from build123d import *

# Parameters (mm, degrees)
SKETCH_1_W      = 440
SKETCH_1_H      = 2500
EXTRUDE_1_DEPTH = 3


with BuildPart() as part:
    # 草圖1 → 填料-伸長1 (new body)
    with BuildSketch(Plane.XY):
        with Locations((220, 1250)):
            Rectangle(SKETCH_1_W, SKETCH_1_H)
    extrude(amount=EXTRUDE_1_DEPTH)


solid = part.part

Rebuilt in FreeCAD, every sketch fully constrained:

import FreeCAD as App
import Part
import Sketcher

V = App.Vector
Q = App.Units.Quantity

doc = App.newDocument("Part")
body = doc.addObject("PartDesign::Body", "Body")

sketch1 = doc.addObject("Sketcher::SketchObject", "Sketch")
body.addObject(sketch1)
sketch1.AttachmentSupport = (doc.XY_Plane, [""])
sketch1.MapMode = "FlatFace"
sketch1.addGeometry(Part.LineSegment(V(0, 2500, 0), V(0, 0, 0)), False)
sketch1.addGeometry(Part.LineSegment(V(0, 0, 0), V(440, 0, 0)), False)
sketch1.addGeometry(Part.LineSegment(V(440, 0, 0), V(440, 2500, 0)), False)
sketch1.addGeometry(Part.LineSegment(V(440, 2500, 0), V(0, 2500, 0)), False)
sketch1.addConstraint(Sketcher.Constraint("Coincident", 0, 2, 1, 1))
sketch1.addConstraint(Sketcher.Constraint("Coincident", 1, 2, 2, 1))
sketch1.addConstraint(Sketcher.Constraint("Coincident", 2, 2, 3, 1))
sketch1.addConstraint(Sketcher.Constraint("Coincident", 3, 2, 0, 1))
sketch1.addConstraint(Sketcher.Constraint("Vertical", 0))
sketch1.addConstraint(Sketcher.Constraint("Horizontal", 1))
sketch1.addConstraint(Sketcher.Constraint("Vertical", 2))
sketch1.addConstraint(Sketcher.Constraint("Horizontal", 3))
sketch1.addConstraint(Sketcher.Constraint("Coincident", 0, 2, -1, 1))
sketch1.addConstraint(Sketcher.Constraint("DistanceX", 1, 1, 1, 2, Q("440 mm")))
sketch1.addConstraint(Sketcher.Constraint("DistanceY", 0, 2, 0, 1, Q("2500 mm")))
pad1 = doc.addObject("PartDesign::Pad", "Pad")
body.addObject(pad1)
pad1.Profile = sketch1
pad1.Length = 3

doc.recompute()
